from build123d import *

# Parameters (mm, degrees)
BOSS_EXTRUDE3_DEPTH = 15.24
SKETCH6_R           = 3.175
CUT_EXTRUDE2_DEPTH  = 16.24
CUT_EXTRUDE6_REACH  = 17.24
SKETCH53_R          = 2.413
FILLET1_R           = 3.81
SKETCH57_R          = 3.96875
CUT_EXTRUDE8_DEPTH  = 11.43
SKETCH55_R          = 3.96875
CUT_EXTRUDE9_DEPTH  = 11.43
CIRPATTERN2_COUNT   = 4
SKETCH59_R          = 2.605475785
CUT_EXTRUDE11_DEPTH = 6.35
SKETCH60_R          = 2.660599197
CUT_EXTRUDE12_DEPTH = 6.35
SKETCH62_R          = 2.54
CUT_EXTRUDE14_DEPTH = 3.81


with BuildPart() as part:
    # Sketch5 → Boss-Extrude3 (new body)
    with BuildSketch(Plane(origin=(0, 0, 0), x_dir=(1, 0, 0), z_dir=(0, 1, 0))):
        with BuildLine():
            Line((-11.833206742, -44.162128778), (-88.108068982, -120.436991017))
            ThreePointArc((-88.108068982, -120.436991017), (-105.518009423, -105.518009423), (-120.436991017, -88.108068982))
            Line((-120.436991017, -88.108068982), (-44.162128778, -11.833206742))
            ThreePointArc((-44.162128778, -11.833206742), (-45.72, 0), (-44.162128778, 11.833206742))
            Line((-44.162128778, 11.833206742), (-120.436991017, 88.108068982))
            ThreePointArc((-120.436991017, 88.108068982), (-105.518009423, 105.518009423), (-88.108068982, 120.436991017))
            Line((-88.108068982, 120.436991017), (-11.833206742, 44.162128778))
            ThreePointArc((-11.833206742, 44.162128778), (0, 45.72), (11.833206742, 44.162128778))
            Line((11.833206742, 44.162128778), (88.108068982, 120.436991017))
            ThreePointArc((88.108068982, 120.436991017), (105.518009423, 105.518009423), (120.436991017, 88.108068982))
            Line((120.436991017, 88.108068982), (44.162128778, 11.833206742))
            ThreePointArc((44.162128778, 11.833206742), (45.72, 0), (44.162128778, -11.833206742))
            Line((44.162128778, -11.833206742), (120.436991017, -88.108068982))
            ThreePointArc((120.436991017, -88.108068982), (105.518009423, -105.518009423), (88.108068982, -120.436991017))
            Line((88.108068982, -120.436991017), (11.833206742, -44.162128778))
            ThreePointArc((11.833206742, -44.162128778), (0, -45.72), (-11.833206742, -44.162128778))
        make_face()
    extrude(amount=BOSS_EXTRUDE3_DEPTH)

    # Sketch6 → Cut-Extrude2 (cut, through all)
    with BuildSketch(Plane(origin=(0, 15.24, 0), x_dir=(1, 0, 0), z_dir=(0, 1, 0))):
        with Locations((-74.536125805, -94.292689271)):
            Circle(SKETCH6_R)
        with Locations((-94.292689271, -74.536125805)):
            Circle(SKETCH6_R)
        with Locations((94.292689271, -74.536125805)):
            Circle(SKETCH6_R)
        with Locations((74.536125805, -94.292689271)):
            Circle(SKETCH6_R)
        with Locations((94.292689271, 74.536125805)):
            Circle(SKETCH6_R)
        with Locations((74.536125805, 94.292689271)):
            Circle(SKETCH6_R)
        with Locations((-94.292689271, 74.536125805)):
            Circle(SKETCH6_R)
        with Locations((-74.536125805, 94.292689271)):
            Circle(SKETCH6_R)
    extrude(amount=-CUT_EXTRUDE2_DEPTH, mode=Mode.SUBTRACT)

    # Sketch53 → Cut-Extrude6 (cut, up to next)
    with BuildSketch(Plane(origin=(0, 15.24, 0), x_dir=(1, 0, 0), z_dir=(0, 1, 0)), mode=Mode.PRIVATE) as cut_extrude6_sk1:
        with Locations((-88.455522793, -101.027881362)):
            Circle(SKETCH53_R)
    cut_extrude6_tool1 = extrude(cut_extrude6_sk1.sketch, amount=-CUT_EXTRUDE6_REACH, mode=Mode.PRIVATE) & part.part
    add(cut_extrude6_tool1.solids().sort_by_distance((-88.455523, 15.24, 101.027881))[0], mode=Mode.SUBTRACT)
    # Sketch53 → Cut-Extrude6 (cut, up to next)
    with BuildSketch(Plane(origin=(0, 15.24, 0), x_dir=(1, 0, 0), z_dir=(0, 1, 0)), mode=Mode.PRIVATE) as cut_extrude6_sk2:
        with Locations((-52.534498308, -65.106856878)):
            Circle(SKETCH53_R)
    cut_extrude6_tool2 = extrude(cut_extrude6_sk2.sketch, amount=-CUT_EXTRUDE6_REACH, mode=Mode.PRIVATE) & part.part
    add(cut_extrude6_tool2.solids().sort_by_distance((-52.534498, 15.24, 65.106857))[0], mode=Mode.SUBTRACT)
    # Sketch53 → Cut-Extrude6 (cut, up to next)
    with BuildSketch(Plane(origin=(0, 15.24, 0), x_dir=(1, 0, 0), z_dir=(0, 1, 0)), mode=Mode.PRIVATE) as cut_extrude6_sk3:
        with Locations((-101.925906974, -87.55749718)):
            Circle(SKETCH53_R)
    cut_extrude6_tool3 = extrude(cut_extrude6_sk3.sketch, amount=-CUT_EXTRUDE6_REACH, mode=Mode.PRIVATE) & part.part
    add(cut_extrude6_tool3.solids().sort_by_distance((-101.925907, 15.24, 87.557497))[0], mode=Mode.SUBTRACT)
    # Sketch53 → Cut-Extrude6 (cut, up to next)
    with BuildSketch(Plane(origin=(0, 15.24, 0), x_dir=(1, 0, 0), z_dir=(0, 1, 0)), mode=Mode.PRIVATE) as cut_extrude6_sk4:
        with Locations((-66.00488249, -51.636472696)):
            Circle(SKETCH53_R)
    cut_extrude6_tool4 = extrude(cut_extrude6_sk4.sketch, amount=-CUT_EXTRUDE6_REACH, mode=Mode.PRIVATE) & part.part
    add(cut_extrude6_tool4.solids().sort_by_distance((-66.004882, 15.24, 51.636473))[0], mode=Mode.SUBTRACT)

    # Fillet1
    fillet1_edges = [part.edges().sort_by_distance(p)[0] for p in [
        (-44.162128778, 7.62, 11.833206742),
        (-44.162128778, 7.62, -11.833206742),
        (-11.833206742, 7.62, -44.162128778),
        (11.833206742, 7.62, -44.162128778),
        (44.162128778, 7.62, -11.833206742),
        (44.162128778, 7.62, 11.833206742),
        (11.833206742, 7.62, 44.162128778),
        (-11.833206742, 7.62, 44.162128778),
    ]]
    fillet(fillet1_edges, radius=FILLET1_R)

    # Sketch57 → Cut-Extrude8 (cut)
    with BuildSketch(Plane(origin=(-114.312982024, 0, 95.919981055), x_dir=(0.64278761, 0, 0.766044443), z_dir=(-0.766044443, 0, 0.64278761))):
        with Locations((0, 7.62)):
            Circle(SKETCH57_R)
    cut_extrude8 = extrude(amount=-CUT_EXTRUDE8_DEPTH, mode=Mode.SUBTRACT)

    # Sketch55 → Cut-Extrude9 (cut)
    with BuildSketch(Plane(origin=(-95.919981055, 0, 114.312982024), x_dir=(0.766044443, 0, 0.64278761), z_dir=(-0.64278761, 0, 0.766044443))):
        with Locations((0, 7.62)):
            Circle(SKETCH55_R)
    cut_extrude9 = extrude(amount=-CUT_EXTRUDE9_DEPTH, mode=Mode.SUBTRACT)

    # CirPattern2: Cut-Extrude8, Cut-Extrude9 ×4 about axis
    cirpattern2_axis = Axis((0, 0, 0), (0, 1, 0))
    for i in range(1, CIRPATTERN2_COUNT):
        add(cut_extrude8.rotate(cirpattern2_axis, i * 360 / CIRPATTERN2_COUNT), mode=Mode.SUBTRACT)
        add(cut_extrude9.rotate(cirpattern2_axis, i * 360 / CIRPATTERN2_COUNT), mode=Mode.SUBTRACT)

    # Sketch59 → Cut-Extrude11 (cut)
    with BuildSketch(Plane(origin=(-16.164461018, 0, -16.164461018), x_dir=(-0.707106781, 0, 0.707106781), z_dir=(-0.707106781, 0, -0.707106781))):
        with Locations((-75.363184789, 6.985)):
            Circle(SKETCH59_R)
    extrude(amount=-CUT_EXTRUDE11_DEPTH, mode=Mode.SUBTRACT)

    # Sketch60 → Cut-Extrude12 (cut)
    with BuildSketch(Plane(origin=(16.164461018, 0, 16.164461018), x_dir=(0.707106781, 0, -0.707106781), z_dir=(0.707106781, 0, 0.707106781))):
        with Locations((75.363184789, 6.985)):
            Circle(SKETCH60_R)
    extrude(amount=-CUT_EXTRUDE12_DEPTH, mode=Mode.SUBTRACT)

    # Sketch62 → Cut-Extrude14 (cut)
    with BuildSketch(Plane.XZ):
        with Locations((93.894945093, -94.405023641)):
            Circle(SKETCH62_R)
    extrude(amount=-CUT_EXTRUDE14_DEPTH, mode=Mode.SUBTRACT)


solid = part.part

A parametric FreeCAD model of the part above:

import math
import FreeCAD as App
import Part
import Sketcher
Q = App.Units.Quantity


def edges_at(feature, points):
    """Names of the edges that pass closest to the given points."""
    edges = feature.Shape.Edges
    near = lambda p: min(range(len(edges)), key=lambda i: edges[i].distToShape(Part.Vertex(*p))[0])
    return sorted({f"Edge{near(p) + 1}" for p in points})

doc = App.newDocument("Part")
params = doc.addObject("Spreadsheet::Sheet", "Params")
for row, (alias, value) in enumerate([
    ("sketch1_radius", "1.8 in"),
    ("sketch1_radius2", "5.875 in"),
    ("pad1_length", "0.6 in"),
    ("sketch2_diameter", "0.25 in"),
    ("sketch3_diameter", "0.19 in"),
    ("sketch4_diameter", "0.19 in"),
    ("sketch5_diameter", "0.19 in"),
    ("sketch6_diameter", "0.19 in"),
    ("fillet_radius", "0.15 in"),
    ("sketch7_diameter", "0.3125 in"),
    ("pocket6_length", "0.45 in"),
    ("sketch8_diameter", "0.3125 in"),
    ("pocket7_length", "0.45 in"),
    ("pocket8_length", "0.25 in"),
    ("pocket9_length", "0.25 in"),
    ("sketch11_diameter", "0.2 in"),
    ("pocket10_length", "0.15 in"),
], start=1):
    params.set(f"A{row}", alias)
    params.set(f"B{row}", "=" + value)
    params.setAlias(f"B{row}", alias)

body = doc.addObject("PartDesign::Body", "Body")

sketch1 = body.newObject("Sketcher::SketchObject", "Sketch")
sketch1.AttachmentSupport = (doc.getObject("XZ_Plane"), [""])
sketch1.MapMode = "FlatFace"
sketch1.addGeometry([
    Part.LineSegment(App.Vector(-88, 120, 0), App.Vector(-12, 44, 0)),
    Part.ArcOfCircle(Part.Circle(App.Vector(0, 0, 0), App.Vector(0, 0, 1), 46), math.radians(75), math.radians(105)),
    Part.LineSegment(App.Vector(12, 44, 0), App.Vector(88, 120, 0)),
    Part.ArcOfCircle(Part.Circle(App.Vector(0, 0, 0), App.Vector(0, 0, 1), 149), math.radians(36.19), math.radians(53.81)),
    Part.LineSegment(App.Vector(120, 88, 0), App.Vector(44, 12, 0)),
    Part.ArcOfCircle(Part.Circle(App.Vector(0, 0, 0), App.Vector(0, 0, 1), 46), math.radians(-15), math.radians(15)),
    Part.LineSegment(App.Vector(44, -12, 0), App.Vector(120, -88, 0)),
    Part.ArcOfCircle(Part.Circle(App.Vector(0, 0, 0), App.Vector(0, 0, 1), 149), math.radians(-53.81), math.radians(-36.19)),
    Part.LineSegment(App.Vector(88, -120, 0), App.Vector(12, -44, 0)),
    Part.ArcOfCircle(Part.Circle(App.Vector(0, 0, 0), App.Vector(0, 0, 1), 46), math.radians(-105), math.radians(-75)),
    Part.LineSegment(App.Vector(-12, -44, 0), App.Vector(-88, -120, 0)),
    Part.ArcOfCircle(Part.Circle(App.Vector(0, 0, 0), App.Vector(0, 0, 1), 149), math.radians(-143.81), math.radians(-126.19)),
    Part.LineSegment(App.Vector(-120, -88, 0), App.Vector(-44, -12, 0)),
    Part.ArcOfCircle(Part.Circle(App.Vector(0, 0, 0), App.Vector(0, 0, 1), 46), math.radians(165), math.radians(195)),
    Part.LineSegment(App.Vector(-44, 12, 0), App.Vector(-120, 88, 0)),
    Part.ArcOfCircle(Part.Circle(App.Vector(0, 0, 0), App.Vector(0, 0, 1), 149), math.radians(126.19), math.radians(143.81)),
], False)
sketch1.addConstraint([
    Sketcher.Constraint("Coincident", 0, 2, 1, 2),
    Sketcher.Constraint("Coincident", 1, 1, 2, 1),
    Sketcher.Constraint("Coincident", 2, 2, 3, 2),
    Sketcher.Constraint("Coincident", 3, 1, 4, 1),
    Sketcher.Constraint("Coincident", 4, 2, 5, 2),
    Sketcher.Constraint("Coincident", 5, 1, 6, 1),
    Sketcher.Constraint("Coincident", 6, 2, 7, 2),
    Sketcher.Constraint("Coincident", 7, 1, 8, 1),
    Sketcher.Constraint("Coincident", 8, 2, 9, 2),
    Sketcher.Constraint("Coincident", 9, 1, 10, 1),
    Sketcher.Constraint("Coincident", 10, 2, 11, 2),
    Sketcher.Constraint("Coincident", 11, 1, 12, 1),
    Sketcher.Constraint("Coincident", 12, 2, 13, 2),
    Sketcher.Constraint("Coincident", 13, 1, 14, 1),
    Sketcher.Constraint("Coincident", 14, 2, 15, 2),
    Sketcher.Constraint("Coincident", 15, 1, 0, 1),
    Sketcher.Constraint("Coincident", 1, 3, -1, 1),
    Sketcher.Constraint("Coincident", 3, 3, -1, 1),
    Sketcher.Constraint("Coincident", 5, 3, -1, 1),
    Sketcher.Constraint("Coincident", 7, 3, -1, 1),
    Sketcher.Constraint("Coincident", 9, 3, -1, 1),
    Sketcher.Constraint("Coincident", 11, 3, -1, 1),
    Sketcher.Constraint("Coincident", 13, 3, -1, 1),
    Sketcher.Constraint("Coincident", 15, 3, -1, 1),
    Sketcher.Constraint("Equal", 1, 5),
    Sketcher.Constraint("Equal", 3, 7),
    Sketcher.Constraint("Equal", 5, 9),
    Sketcher.Constraint("Equal", 7, 11),
    Sketcher.Constraint("Equal", 9, 13),
    Sketcher.Constraint("Equal", 11, 15),
    Sketcher.Constraint("Perpendicular", 0, 2),
    Sketcher.Constraint("Parallel", 2, 4),
    Sketcher.Constraint("Perpendicular", 4, 6),
    Sketcher.Constraint("Parallel", 6, 8),
    Sketcher.Constraint("Perpendicular", 8, 10),
    Sketcher.Constraint("Parallel", 10, 12),
    Sketcher.Constraint("Perpendicular", 12, 14),
    Sketcher.Constraint("Horizontal", 0, 2, 1, 1),
    Sketcher.Constraint("Horizontal", 8, 2, 9, 1),
    Sketcher.Constraint("Horizontal", 7, 1, 10, 2),
    Sketcher.Constraint("Horizontal", 6, 2, 11, 1),
    Sketcher.Constraint("Horizontal", 4, 2, 13, 1),
    Sketcher.Constraint("Vertical", 4, 2, 5, 1),
    Sketcher.Constraint("Vertical", 2, 2, 7, 1),
    Sketcher.Constraint("Equal", 2, 4),
    Sketcher.Constraint("Radius", 1, Q("1.8 in")),
    Sketcher.Constraint("Radius", 3, Q("5.875 in")),
    Sketcher.Constraint("DistanceY", -1, 1, 0, 2, 44.162129),
])
sketch1.setExpression("Constraints[45]", "Params.sketch1_radius")
sketch1.setExpression("Constraints[46]", "Params.sketch1_radius2")
pad1 = body.newObject("PartDesign::Pad", "Pad")
pad1.Profile = sketch1
pad1.setExpression("Length", "Params.pad1_length")
pad1.Reversed = True

sketch2 = body.newObject("Sketcher::SketchObject", "Sketch001")
sketch2.AttachmentSupport = (doc.getObject("XZ_Plane"), [""])
sketch2.MapMode = "FlatFace"
sketch2.AttachmentOffset = App.Placement(App.Vector(0, 0, -0.6 * 25.4), App.Rotation())
sketch2.addGeometry([
    Part.Circle(App.Vector(-74.5, 94.3, 0), App.Vector(0, 0, 1), 3.2),
    Part.Circle(App.Vector(-94.3, 74.5, 0), App.Vector(0, 0, 1), 3.2),
    Part.Circle(App.Vector(94.3, 74.5, 0), App.Vector(0, 0, 1), 3.2),
    Part.Circle(App.Vector(74.5, 94.3, 0), App.Vector(0, 0, 1), 3.2),
    Part.Circle(App.Vector(94.3, -74.5, 0), App.Vector(0, 0, 1), 3.2),
    Part.Circle(App.Vector(74.5, -94.3, 0), App.Vector(0, 0, 1), 3.2),
    Part.Circle(App.Vector(-94.3, -74.5, 0), App.Vector(0, 0, 1), 3.2),
    Part.Circle(App.Vector(-74.5, -94.3, 0), App.Vector(0, 0, 1), 3.2),
], False)
sketch2.addConstraint([
    Sketcher.Constraint("Equal", 0, 1),
    Sketcher.Constraint("Equal", 1, 2),
    Sketcher.Constraint("Equal", 2, 3),
    Sketcher.Constraint("Equal", 3, 4),
    Sketcher.Constraint("Equal", 4, 5),
    Sketcher.Constraint("Equal", 5, 6),
    Sketcher.Constraint("Equal", 6, 7),
    Sketcher.Constraint("Symmetric", 1, 3, 4, 3, -1, 1),
    Sketcher.Constraint("Symmetric", 0, 3, 5, 3, -1, 1),
    Sketcher.Constraint("Symmetric", 2, 3, 6, 3, -1, 1),
    Sketcher.Constraint("Symmetric", 3, 3, 7, 3, -1, 1),
    Sketcher.Constraint("Symmetric", 1, 3, 2, 3, -2),
    Sketcher.Constraint("Symmetric", 0, 3, 3, 3, -2),
    Sketcher.Constraint("Diameter", 0, Q("0.25 in")),
    Sketcher.Constraint("DistanceY", -1, 1, 0, 3, 94.292689),
    Sketcher.Constraint("DistanceX", 1, 3, -1, 1, 94.292689),
    Sketcher.Constraint("DistanceX", 0, 3, 3, 3, 149.072252),
    Sketcher.Constraint("DistanceY", 4, 3, 2, 3, 149.072252),
])
sketch2.setExpression("Constraints[13]", "Params.sketch2_diameter")
pocket1 = body.newObject("PartDesign::Pocket", "Pocket")
pocket1.Profile = sketch2
pocket1.Type = "ThroughAll"
pocket1.Reversed = True

sketch3 = body.newObject("Sketcher::SketchObject", "Sketch002")
sketch3.AttachmentSupport = (doc.getObject("XZ_Plane"), [""])
sketch3.MapMode = "FlatFace"
sketch3.AttachmentOffset = App.Placement(App.Vector(0, 0, -0.6 * 25.4), App.Rotation())
sketch3.addGeometry(Part.Circle(App.Vector(-88.5, 101, 0), App.Vector(0, 0, 1), 2.4), False)
sketch3.addConstraint([
    Sketcher.Constraint("Diameter", 0, Q("0.19 in")),
    Sketcher.Constraint("DistanceY", -1, 1, 0, 3, 101.027881),
    Sketcher.Constraint("DistanceX", 0, 3, -1, 1, 88.455523),
])
sketch3.setExpression("Constraints[0]", "Params.sketch3_diameter")
pocket2 = body.newObject("PartDesign::Pocket", "Pocket001")
pocket2.Profile = sketch3
pocket2.Type = "UpToFirst"
pocket2.Reversed = True

sketch4 = body.newObject("Sketcher::SketchObject", "Sketch003")
sketch4.AttachmentSupport = (doc.getObject("XZ_Plane"), [""])
sketch4.MapMode = "FlatFace"
sketch4.AttachmentOffset = App.Placement(App.Vector(0, 0, -0.6 * 25.4), App.Rotation())
sketch4.addGeometry(Part.Circle(App.Vector(-52.5, 65.1, 0), App.Vector(0, 0, 1), 2.4), False)
sketch4.addConstraint([
    Sketcher.Constraint("Diameter", 0, Q("0.19 in")),
    Sketcher.Constraint("DistanceX", 0, 3, -1, 1, 52.534498),
    Sketcher.Constraint("DistanceY", -1, 1, 0, 3, 65.106857),
])
sketch4.setExpression("Constraints[0]", "Params.sketch4_diameter")
pocket3 = body.newObject("PartDesign::Pocket", "Pocket002")
pocket3.Profile = sketch4
pocket3.Type = "UpToFirst"
pocket3.Reversed = True

sketch5 = body.newObject("Sketcher::SketchObject", "Sketch004")
sketch5.AttachmentSupport = (doc.getObject("XZ_Plane"), [""])
sketch5.MapMode = "FlatFace"
sketch5.AttachmentOffset = App.Placement(App.Vector(0, 0, -0.6 * 25.4), App.Rotation())
sketch5.addGeometry(Part.Circle(App.Vector(-101.9, 87.6, 0), App.Vector(0, 0, 1), 2.4), False)
sketch5.addConstraint([
    Sketcher.Constraint("Diameter", 0, Q("0.19 in")),
    Sketcher.Constraint("DistanceX", 0, 3, -1, 1, 101.925907),
    Sketcher.Constraint("DistanceY", -1, 1, 0, 3, 87.557497),
])
sketch5.setExpression("Constraints[0]", "Params.sketch5_diameter")
pocket4 = body.newObject("PartDesign::Pocket", "Pocket003")
pocket4.Profile = sketch5
pocket4.Type = "UpToFirst"
pocket4.Reversed = True

sketch6 = body.newObject("Sketcher::SketchObject", "Sketch005")
sketch6.AttachmentSupport = (doc.getObject("XZ_Plane"), [""])
sketch6.MapMode = "FlatFace"
sketch6.AttachmentOffset = App.Placement(App.Vector(0, 0, -0.6 * 25.4), App.Rotation())
sketch6.addGeometry(Part.Circle(App.Vector(-66, 51.6, 0), App.Vector(0, 0, 1), 2.4), False)
sketch6.addConstraint([
    Sketcher.Constraint("Diameter", 0, Q("0.19 in")),
    Sketcher.Constraint("DistanceX", 0, 3, -1, 1, 66.004882),
    Sketcher.Constraint("DistanceY", -1, 1, 0, 3, 51.636473),
])
sketch6.setExpression("Constraints[0]", "Params.sketch6_diameter")
pocket5 = body.newObject("PartDesign::Pocket", "Pocket004")
pocket5.Profile = sketch6
pocket5.Type = "UpToFirst"
pocket5.Reversed = True
doc.recompute()

fillet = body.newObject("PartDesign::Fillet", "Fillet")
fillet.Base = (pocket5, edges_at(pocket5, [
    (-44.162, 7.62, 11.833),
    (-44.162, 7.62, -11.833),
    (-11.833, 7.62, -44.162),
    (11.833, 7.62, -44.162),
    (44.162, 7.62, -11.833),
    (44.162, 7.62, 11.833),
    (11.833, 7.62, 44.162),
    (-11.833, 7.62, 44.162),
]))
fillet.setExpression("Radius", "Params.fillet_radius")

sketch7 = body.newObject("Sketcher::SketchObject", "Sketch006")
sketch7.Placement = App.Placement(App.Vector(-114.312982, 0, 95.919981), App.Rotation(App.Vector(0.64278761, 0, 0.766044443), App.Vector(0, 1, 0), App.Vector(-0.766044443, 0, 0.64278761), "ZXY"))
sketch7.addGeometry(Part.Circle(App.Vector(0, 7.6, 0), App.Vector(0, 0, 1), 4), False)
sketch7.addConstraint([
    Sketcher.Constraint("PointOnObject", 0, 3, -2),
    Sketcher.Constraint("Diameter", 0, Q("0.3125 in")),
    Sketcher.Constraint("DistanceY", -1, 1, 0, 3, Q("0.3 in")),
])
sketch7.setExpression("Constraints[1]", "Params.sketch7_diameter")
pocket6 = body.newObject("PartDesign::Pocket", "Pocket005")
pocket6.Profile = sketch7
pocket6.setExpression("Length", "Params.pocket6_length")

sketch8 = body.newObject("Sketcher::SketchObject", "Sketch007")
sketch8.Placement = App.Placement(App.Vector(-95.919981, 0, 114.312982), App.Rotation(App.Vector(0.766044443, 0, 0.64278761), App.Vector(0, 1, 0), App.Vector(-0.64278761, 0, 0.766044443), "ZXY"))
sketch8.addGeometry(Part.Circle(App.Vector(0, 7.6, 0), App.Vector(0, 0, 1), 4), False)
sketch8.addConstraint([
    Sketcher.Constraint("PointOnObject", 0, 3, -2),
    Sketcher.Constraint("Diameter", 0, Q("0.3125 in")),
    Sketcher.Constraint("DistanceY", -1, 1, 0, 3, Q("0.3 in")),
])
sketch8.setExpression("Constraints[1]", "Params.sketch8_diameter")
pocket7 = body.newObject("PartDesign::Pocket", "Pocket006")
pocket7.Profile = sketch8
pocket7.setExpression("Length", "Params.pocket7_length")
doc.recompute()

polarpattern = body.newObject("PartDesign::PolarPattern", "PolarPattern")
polarpattern.Originals = [pocket6, pocket7]
polarpattern.Axis = (doc.getObject("Y_Axis"), [""])
polarpattern.Angle = 360
polarpattern.Occurrences = 4
body.Tip = polarpattern

sketch9 = body.newObject("Sketcher::SketchObject", "Sketch008")
sketch9.Placement = App.Placement(App.Vector(-16.164461, 0, -16.164461), App.Rotation(App.Vector(-0.707106781, 0, 0.707106781), App.Vector(0, 0.999999999, 0), App.Vector(-0.707106781, 0, -0.707106781), "ZXY"))
sketch9.addGeometry(Part.Circle(App.Vector(-75.4, 7, 0), App.Vector(0, 0, 1), 2.6), False)
sketch9.addConstraint([
    Sketcher.Constraint("Diameter", 0, 5.210952),
    Sketcher.Constraint("DistanceY", -1, 1, 0, 3, Q("0.275 in")),
    Sketcher.Constraint("DistanceX", 0, 3, -1, 1, 75.363185),
])
pocket8 = body.newObject("PartDesign::Pocket", "Pocket007")
pocket8.Profile = sketch9
pocket8.setExpression("Length", "Params.pocket8_length")

sketch10 = body.newObject("Sketcher::SketchObject", "Sketch009")
sketch10.Placement = App.Placement(App.Vector(16.164461, 0, 16.164461), App.Rotation(App.Vector(0.707106781, 0, -0.707106781), App.Vector(0, 0.999999999, 0), App.Vector(0.707106781, 0, 0.707106781), "ZXY"))
sketch10.addGeometry(Part.Circle(App.Vector(75.4, 7, 0), App.Vector(0, 0, 1), 2.7), False)
sketch10.addConstraint([
    Sketcher.Constraint("Diameter", 0, 5.321198),
    Sketcher.Constraint("DistanceY", -1, 1, 0, 3, Q("0.275 in")),
    Sketcher.Constraint("DistanceX", -1, 1, 0, 3, 75.363185),
])
pocket9 = body.newObject("PartDesign::Pocket", "Pocket008")
pocket9.Profile = sketch10
pocket9.setExpression("Length", "Params.pocket9_length")

sketch11 = body.newObject("Sketcher::SketchObject", "Sketch010")
sketch11.AttachmentSupport = (doc.getObject("XZ_Plane"), [""])
sketch11.MapMode = "FlatFace"
sketch11.addGeometry(Part.Circle(App.Vector(93.9, -94.4, 0), App.Vector(0, 0, 1), 2.5), False)
sketch11.addConstraint([
    Sketcher.Constraint("Diameter", 0, Q("0.2 in")),
    Sketcher.Constraint("DistanceX", -1, 1, 0, 3, 93.894945),
    Sketcher.Constraint("DistanceY", 0, 3, -1, 1, 94.405024),
])
sketch11.setExpression("Constraints[0]", "Params.sketch11_diameter")
pocket10 = body.newObject("PartDesign::Pocket", "Pocket009")
pocket10.Profile = sketch11
pocket10.setExpression("Length", "Params.pocket10_length")

doc.recompute()
